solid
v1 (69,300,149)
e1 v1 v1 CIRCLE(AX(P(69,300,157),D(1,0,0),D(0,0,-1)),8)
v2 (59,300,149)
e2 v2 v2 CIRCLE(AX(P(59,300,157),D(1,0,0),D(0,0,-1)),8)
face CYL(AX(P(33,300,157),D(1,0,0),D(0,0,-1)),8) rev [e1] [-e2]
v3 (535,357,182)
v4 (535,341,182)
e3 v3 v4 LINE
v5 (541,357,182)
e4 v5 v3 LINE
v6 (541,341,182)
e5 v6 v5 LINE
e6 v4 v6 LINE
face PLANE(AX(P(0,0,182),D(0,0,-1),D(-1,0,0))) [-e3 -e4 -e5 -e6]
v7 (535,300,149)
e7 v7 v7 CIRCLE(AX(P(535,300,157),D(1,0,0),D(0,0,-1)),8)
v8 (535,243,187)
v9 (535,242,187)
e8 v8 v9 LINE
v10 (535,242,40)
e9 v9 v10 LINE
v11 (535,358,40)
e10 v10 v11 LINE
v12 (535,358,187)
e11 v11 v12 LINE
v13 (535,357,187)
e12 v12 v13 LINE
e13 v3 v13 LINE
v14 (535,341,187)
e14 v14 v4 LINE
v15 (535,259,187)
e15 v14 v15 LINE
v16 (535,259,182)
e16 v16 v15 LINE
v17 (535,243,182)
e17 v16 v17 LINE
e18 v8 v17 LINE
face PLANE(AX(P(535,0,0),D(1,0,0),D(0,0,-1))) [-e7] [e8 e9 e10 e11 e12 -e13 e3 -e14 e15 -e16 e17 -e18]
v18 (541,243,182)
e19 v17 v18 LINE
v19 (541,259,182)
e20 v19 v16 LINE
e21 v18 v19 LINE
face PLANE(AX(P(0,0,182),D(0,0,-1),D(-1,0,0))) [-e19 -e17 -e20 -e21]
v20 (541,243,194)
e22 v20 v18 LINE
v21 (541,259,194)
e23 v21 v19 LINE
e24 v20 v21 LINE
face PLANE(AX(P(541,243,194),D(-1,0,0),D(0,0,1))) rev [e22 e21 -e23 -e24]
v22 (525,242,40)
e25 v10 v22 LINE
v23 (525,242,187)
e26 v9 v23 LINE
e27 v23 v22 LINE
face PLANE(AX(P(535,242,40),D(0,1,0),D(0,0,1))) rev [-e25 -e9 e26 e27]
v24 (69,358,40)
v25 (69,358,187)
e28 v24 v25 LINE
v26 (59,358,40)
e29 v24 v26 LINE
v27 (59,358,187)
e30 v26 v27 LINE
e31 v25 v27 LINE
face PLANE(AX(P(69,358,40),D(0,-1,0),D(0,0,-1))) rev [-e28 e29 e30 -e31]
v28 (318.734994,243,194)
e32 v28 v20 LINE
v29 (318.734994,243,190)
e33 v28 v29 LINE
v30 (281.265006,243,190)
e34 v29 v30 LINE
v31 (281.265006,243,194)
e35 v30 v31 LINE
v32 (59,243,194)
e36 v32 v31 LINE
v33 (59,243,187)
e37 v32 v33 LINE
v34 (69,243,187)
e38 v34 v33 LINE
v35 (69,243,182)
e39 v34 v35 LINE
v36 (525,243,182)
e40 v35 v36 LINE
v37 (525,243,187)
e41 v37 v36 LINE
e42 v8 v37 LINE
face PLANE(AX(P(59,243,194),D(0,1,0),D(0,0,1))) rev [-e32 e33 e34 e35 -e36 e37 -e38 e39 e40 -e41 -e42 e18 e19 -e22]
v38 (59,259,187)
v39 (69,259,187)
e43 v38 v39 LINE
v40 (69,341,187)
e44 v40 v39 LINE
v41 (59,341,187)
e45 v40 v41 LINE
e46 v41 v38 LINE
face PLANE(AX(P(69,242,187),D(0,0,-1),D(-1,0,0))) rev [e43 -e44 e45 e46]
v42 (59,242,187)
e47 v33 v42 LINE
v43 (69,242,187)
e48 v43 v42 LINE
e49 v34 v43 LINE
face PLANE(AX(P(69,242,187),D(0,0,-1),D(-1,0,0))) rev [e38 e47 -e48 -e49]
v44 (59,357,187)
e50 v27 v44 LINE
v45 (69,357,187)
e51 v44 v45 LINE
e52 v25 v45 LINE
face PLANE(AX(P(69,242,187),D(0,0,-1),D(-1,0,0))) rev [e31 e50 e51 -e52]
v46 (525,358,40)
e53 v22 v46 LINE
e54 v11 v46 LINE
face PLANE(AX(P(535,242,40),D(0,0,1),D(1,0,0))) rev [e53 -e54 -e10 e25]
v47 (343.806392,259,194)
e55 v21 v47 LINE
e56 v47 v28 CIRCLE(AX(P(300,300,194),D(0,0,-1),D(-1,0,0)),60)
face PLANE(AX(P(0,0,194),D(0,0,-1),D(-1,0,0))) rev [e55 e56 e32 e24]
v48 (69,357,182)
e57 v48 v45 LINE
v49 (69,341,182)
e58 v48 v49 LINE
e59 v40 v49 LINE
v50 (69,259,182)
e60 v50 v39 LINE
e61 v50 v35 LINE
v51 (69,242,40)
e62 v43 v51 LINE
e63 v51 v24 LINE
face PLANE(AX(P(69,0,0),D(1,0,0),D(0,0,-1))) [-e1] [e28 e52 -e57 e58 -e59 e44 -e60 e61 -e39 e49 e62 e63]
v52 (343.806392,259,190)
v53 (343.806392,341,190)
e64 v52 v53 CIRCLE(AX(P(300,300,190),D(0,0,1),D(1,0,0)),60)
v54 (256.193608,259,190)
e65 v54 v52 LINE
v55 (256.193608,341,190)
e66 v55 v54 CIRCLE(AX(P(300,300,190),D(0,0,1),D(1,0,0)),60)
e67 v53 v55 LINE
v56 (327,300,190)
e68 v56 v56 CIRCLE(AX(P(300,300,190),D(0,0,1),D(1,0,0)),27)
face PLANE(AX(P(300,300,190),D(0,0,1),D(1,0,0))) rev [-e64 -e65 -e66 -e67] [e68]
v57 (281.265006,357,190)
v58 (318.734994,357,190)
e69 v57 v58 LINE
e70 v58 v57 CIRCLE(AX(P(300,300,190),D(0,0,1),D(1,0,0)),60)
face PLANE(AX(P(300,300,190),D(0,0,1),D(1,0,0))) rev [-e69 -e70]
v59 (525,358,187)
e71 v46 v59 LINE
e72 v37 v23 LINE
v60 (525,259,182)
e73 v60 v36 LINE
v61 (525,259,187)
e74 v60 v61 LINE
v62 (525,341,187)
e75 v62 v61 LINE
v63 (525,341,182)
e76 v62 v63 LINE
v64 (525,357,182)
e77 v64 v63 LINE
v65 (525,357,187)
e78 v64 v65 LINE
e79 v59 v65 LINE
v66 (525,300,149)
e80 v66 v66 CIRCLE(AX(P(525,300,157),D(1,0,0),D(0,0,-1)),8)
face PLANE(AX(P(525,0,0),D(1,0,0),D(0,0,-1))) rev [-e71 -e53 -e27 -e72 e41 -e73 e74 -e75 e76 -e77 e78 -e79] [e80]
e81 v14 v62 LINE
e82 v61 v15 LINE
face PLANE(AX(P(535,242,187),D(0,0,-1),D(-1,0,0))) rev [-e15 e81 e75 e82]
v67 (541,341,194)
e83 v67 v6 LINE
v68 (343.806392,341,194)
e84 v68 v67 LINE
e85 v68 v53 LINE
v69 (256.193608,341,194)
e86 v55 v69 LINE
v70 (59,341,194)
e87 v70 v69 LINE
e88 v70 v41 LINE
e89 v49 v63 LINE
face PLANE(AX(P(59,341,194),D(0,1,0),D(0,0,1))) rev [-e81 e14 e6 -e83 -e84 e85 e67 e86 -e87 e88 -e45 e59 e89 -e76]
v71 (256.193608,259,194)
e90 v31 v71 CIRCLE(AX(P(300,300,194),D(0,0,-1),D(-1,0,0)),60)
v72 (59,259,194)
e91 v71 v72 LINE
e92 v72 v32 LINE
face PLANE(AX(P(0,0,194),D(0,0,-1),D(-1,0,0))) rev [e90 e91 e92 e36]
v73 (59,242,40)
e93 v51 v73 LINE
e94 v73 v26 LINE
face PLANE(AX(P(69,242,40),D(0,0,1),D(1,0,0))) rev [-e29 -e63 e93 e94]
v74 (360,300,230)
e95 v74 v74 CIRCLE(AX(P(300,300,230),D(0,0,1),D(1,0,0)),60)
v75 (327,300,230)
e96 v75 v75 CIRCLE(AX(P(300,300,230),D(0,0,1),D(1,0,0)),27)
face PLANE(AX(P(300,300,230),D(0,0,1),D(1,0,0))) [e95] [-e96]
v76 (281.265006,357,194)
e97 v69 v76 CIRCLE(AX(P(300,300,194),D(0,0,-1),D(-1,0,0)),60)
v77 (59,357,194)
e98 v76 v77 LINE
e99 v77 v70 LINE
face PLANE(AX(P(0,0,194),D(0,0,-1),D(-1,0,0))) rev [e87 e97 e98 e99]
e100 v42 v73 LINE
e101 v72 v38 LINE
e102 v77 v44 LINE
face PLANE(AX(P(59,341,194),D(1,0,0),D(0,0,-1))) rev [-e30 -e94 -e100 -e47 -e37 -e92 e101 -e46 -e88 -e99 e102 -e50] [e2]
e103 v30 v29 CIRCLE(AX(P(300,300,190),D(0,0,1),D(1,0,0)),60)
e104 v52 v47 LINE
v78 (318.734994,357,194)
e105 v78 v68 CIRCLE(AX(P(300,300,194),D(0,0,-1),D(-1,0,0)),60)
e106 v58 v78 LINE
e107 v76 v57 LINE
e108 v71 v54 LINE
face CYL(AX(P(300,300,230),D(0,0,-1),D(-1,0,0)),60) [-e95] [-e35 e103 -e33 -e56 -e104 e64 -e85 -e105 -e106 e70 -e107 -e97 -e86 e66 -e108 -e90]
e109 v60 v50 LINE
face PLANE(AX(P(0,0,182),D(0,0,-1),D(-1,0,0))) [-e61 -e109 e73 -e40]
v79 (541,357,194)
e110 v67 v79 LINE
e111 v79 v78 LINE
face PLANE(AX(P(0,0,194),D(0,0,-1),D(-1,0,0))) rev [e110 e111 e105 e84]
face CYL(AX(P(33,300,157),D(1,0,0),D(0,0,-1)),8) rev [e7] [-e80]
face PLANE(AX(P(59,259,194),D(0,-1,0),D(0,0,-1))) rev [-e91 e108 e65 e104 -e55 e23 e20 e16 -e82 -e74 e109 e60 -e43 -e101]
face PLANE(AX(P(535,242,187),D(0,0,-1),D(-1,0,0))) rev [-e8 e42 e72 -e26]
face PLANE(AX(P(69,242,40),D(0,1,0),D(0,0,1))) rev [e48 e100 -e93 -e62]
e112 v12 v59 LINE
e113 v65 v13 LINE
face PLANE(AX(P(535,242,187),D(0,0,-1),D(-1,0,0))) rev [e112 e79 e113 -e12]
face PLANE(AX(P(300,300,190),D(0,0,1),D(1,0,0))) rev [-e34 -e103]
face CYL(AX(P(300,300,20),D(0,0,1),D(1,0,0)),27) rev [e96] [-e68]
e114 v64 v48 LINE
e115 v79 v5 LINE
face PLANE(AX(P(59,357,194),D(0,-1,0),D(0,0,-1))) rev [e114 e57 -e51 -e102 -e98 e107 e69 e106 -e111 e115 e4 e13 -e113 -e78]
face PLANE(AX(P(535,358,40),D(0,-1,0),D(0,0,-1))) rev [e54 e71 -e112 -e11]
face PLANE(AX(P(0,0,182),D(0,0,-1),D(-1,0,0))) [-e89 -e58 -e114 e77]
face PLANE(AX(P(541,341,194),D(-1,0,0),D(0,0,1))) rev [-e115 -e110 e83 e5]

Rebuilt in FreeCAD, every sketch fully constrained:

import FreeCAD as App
import Part
import Sketcher

V = App.Vector


def add_polygon(sketch, points):
    """Adds a closed chain of lines whose ends are joined by coincident constraints."""
    first, n = sketch.GeometryCount, len(points)
    for a, b in zip(points, points[1:] + points[:1]):
        sketch.addGeometry(Part.LineSegment(App.Vector(*a, 0), App.Vector(*b, 0)), False)
    for i in range(n):
        sketch.addConstraint(Sketcher.Constraint("Coincident", first + i, 2, first + (i + 1) % n, 1))

doc = App.newDocument("Part")
params = doc.addObject("Spreadsheet::Sheet", "Params")
for row, (alias, value) in enumerate([
    ("sketch1_diameter", "120 mm"),
    ("pad1_length", "40 mm"),
    ("sketch2_width", "482 mm"),
    ("sketch2_height", "16 mm"),
    ("pad2_length", "12 mm"),
    ("sketch3_width", "482 mm"),
    ("sketch3_height", "16 mm"),
    ("pad3_length", "12 mm"),
    ("sketch4_width", "116 mm"),
    ("sketch4_height", "147 mm"),
    ("pad4_length", "10 mm"),
    ("sketch5_width", "116 mm"),
    ("sketch5_height", "147 mm"),
    ("pad5_length", "10 mm"),
    ("sketch6_diameter", "54 mm"),
    ("pocket1_length", "210 mm"),
    ("sketch7_diameter", "16 mm"),
    ("pocket2_length", "502 mm"),
], start=1):
    params.set(f"A{row}", alias)
    params.set(f"B{row}", "=" + value)
    params.setAlias(f"B{row}", alias)

body = doc.addObject("PartDesign::Body", "Body")

# Sketch on XY plane
sketch1 = body.newObject("Sketcher::SketchObject", "Sketch")
sketch1.AttachmentSupport = (doc.getObject("XY_Plane"), [""])
sketch1.MapMode = "FlatFace"
sketch1.AttachmentOffset = App.Placement(V(0, 0, 190), App.Rotation())
sketch1.addGeometry(Part.Circle(V(300, 300, 0), V(0, 0, 1), 60), False)
sketch1.addConstraint([
    Sketcher.Constraint("Diameter", 0, 120.0),
    Sketcher.Constraint("DistanceX", -1, 1, 0, 3, 300.0),
    Sketcher.Constraint("DistanceY", -1, 1, 0, 3, 300.0),
])
sketch1.setExpression("Constraints[0]", "Params.sketch1_diameter")
pad1 = body.newObject("PartDesign::Pad", "Pad")
pad1.Profile = sketch1
pad1.setExpression("Length", "Params.pad1_length")

# Sketch on XY plane
sketch2 = body.newObject("Sketcher::SketchObject", "Sketch001")
sketch2.AttachmentSupport = (doc.getObject("XY_Plane"), [""])
sketch2.MapMode = "FlatFace"
sketch2.AttachmentOffset = App.Placement(V(0, 0, 182), App.Rotation())
add_polygon(sketch2, [(59, 357), (59, 341), (541, 341), (541, 357)])  # lines 0-3
sketch2.addConstraint([
    Sketcher.Constraint("Vertical", 0),
    Sketcher.Constraint("Horizontal", 1),
    Sketcher.Constraint("Vertical", 2),
    Sketcher.Constraint("Horizontal", 3),
    Sketcher.Constraint("DistanceX", 1, 1, 1, 2, 482.0),
    Sketcher.Constraint("DistanceY", 0, 2, 0, 1, 16.0),
    Sketcher.Constraint("DistanceX", -1, 1, 0, 2, 59.0),
    Sketcher.Constraint("DistanceY", -1, 1, 0, 2, 341.0),
])
sketch2.setExpression("Constraints[8]", "Params.sketch2_width")
sketch2.setExpression("Constraints[9]", "Params.sketch2_height")
pad2 = body.newObject("PartDesign::Pad", "Pad001")
pad2.Profile = sketch2
pad2.setExpression("Length", "Params.pad2_length")

# Sketch on XY plane
sketch3 = body.newObject("Sketcher::SketchObject", "Sketch002")
sketch3.AttachmentSupport = (doc.getObject("XY_Plane"), [""])
sketch3.MapMode = "FlatFace"
sketch3.AttachmentOffset = App.Placement(V(0, 0, 182), App.Rotation())
add_polygon(sketch3, [(59, 259), (59, 243), (541, 243), (541, 259)])  # lines 0-3
sketch3.addConstraint([
    Sketcher.Constraint("Vertical", 0),
    Sketcher.Constraint("Horizontal", 1),
    Sketcher.Constraint("Vertical", 2),
    Sketcher.Constraint("Horizontal", 3),
    Sketcher.Constraint("DistanceX", 1, 1, 1, 2, 482.0),
    Sketcher.Constraint("DistanceY", 0, 2, 0, 1, 16.0),
    Sketcher.Constraint("DistanceX", -1, 1, 0, 2, 59.0),
    Sketcher.Constraint("DistanceY", -1, 1, 0, 2, 243.0),
])
sketch3.setExpression("Constraints[8]", "Params.sketch3_width")
sketch3.setExpression("Constraints[9]", "Params.sketch3_height")
pad3 = body.newObject("PartDesign::Pad", "Pad002")
pad3.Profile = sketch3
pad3.setExpression("Length", "Params.pad3_length")

# Sketch on YZ plane
sketch4 = body.newObject("Sketcher::SketchObject", "Sketch003")
sketch4.AttachmentSupport = (doc.getObject("YZ_Plane"), [""])
sketch4.MapMode = "FlatFace"
sketch4.AttachmentOffset = App.Placement(V(0, 0, 525), App.Rotation())
add_polygon(sketch4, [(358, 187), (242, 187), (242, 40), (358, 40)])  # lines 0-3
sketch4.addConstraint([
    Sketcher.Constraint("Horizontal", 0),
    Sketcher.Constraint("Vertical", 1),
    Sketcher.Constraint("Horizontal", 2),
    Sketcher.Constraint("Vertical", 3),
    Sketcher.Constraint("DistanceX", 0, 2, 0, 1, 116.0),
    Sketcher.Constraint("DistanceY", 1, 2, 1, 1, 147.0),
    Sketcher.Constraint("DistanceX", -1, 1, 0, 2, 242.0),
    Sketcher.Constraint("DistanceY", -1, 1, 0, 2, 187.0),
])
sketch4.setExpression("Constraints[8]", "Params.sketch4_width")
sketch4.setExpression("Constraints[9]", "Params.sketch4_height")
pad4 = body.newObject("PartDesign::Pad", "Pad003")
pad4.Profile = sketch4
pad4.setExpression("Length", "Params.pad4_length")

# Sketch on YZ plane
sketch5 = body.newObject("Sketcher::SketchObject", "Sketch004")
sketch5.AttachmentSupport = (doc.getObject("YZ_Plane"), [""])
sketch5.MapMode = "FlatFace"
sketch5.AttachmentOffset = App.Placement(V(0, 0, 59), App.Rotation())
add_polygon(sketch5, [(358, 187), (242, 187), (242, 40), (358, 40)])  # lines 0-3
sketch5.addConstraint([
    Sketcher.Constraint("Horizontal", 0),
    Sketcher.Constraint("Vertical", 1),
    Sketcher.Constraint("Horizontal", 2),
    Sketcher.Constraint("Vertical", 3),
    Sketcher.Constraint("DistanceX", 0, 2, 0, 1, 116.0),
    Sketcher.Constraint("DistanceY", 1, 2, 1, 1, 147.0),
    Sketcher.Constraint("DistanceX", -1, 1, 0, 2, 242.0),
    Sketcher.Constraint("DistanceY", -1, 1, 0, 2, 187.0),
])
sketch5.setExpression("Constraints[8]", "Params.sketch5_width")
sketch5.setExpression("Constraints[9]", "Params.sketch5_height")
pad5 = body.newObject("PartDesign::Pad", "Pad004")
pad5.Profile = sketch5
pad5.setExpression("Length", "Params.pad5_length")

# Sketch on XY plane
sketch6 = body.newObject("Sketcher::SketchObject", "Sketch005")
sketch6.AttachmentSupport = (doc.getObject("XY_Plane"), [""])
sketch6.MapMode = "FlatFace"
sketch6.AttachmentOffset = App.Placement(V(0, 0, 230), App.Rotation())
sketch6.addGeometry(Part.Circle(V(300, 300, 0), V(0, 0, 1), 27), False)
sketch6.addConstraint([
    Sketcher.Constraint("Diameter", 0, 54.0),
    Sketcher.Constraint("DistanceX", -1, 1, 0, 3, 300.0),
    Sketcher.Constraint("DistanceY", -1, 1, 0, 3, 300.0),
])
sketch6.setExpression("Constraints[0]", "Params.sketch6_diameter")
pocket1 = body.newObject("PartDesign::Pocket", "Pocket")
pocket1.Profile = sketch6
pocket1.setExpression("Length", "Params.pocket1_length")

# Sketch on YZ plane
sketch7 = body.newObject("Sketcher::SketchObject", "Sketch006")
sketch7.AttachmentSupport = (doc.getObject("YZ_Plane"), [""])
sketch7.MapMode = "FlatFace"
sketch7.AttachmentOffset = App.Placement(V(0, 0, 535), App.Rotation())
sketch7.addGeometry(Part.Circle(V(300, 157, 0), V(0, 0, 1), 8), False)
sketch7.addConstraint([
    Sketcher.Constraint("Diameter", 0, 16.0),
    Sketcher.Constraint("DistanceX", -1, 1, 0, 3, 300.0),
    Sketcher.Constraint("DistanceY", -1, 1, 0, 3, 157.0),
])
sketch7.setExpression("Constraints[0]", "Params.sketch7_diameter")
pocket2 = body.newObject("PartDesign::Pocket", "Pocket001")
pocket2.Profile = sketch7
pocket2.setExpression("Length", "Params.pocket2_length")

doc.recompute()
